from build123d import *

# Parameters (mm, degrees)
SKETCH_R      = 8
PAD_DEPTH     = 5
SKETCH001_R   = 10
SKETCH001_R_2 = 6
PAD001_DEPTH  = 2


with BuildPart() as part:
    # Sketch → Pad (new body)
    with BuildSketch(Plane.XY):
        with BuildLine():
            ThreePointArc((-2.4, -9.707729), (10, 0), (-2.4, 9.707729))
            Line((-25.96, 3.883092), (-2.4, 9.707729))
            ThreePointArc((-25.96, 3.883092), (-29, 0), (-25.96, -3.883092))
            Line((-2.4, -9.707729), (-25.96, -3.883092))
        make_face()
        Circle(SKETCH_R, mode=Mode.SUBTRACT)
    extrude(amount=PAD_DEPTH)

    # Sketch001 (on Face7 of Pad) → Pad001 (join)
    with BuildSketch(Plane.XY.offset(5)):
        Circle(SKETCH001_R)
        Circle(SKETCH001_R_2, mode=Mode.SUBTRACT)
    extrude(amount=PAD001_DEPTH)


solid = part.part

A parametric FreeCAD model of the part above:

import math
import FreeCAD as App
import Part
import Sketcher
from FreeCAD import Vector
Q = App.Units.Quantity

doc = App.newDocument("Part")
body = doc.addObject("PartDesign::Body", "Body")

sketch1 = doc.addObject("Sketcher::SketchObject", "Sketch")
body.addObject(sketch1)
sketch1.AttachmentSupport = (doc.XY_Plane, [""])
sketch1.MapMode = "FlatFace"
sketch1.addGeometry([
    Part.ArcOfCircle(Part.Circle(Vector(0, 0, 0), Vector(0, 0, 1), 10), math.radians(-104), math.radians(104)),
    Part.LineSegment(Vector(-2.4, 9.7, 0), Vector(-26, 3.9, 0)),
    Part.ArcOfCircle(Part.Circle(Vector(-25, 0, 0), Vector(0, 0, 1), 4), math.radians(104), math.radians(256)),
    Part.LineSegment(Vector(-26, -3.9, 0), Vector(-2.4, -9.7, 0)),
    Part.Circle(Vector(0, 0, 0), Vector(0, 0, 1), 8),
], False)
sketch1.addConstraint([
    Sketcher.Constraint("Tangent", 0, 2, 1, 1),
    Sketcher.Constraint("Tangent", 1, 2, 2, 1),
    Sketcher.Constraint("Tangent", 2, 2, 3, 1),
    Sketcher.Constraint("Tangent", 3, 2, 0, 1),
    Sketcher.Constraint("Coincident", 0, 3, -1, 1),
    Sketcher.Constraint("Coincident", 4, 3, -1, 1),
    Sketcher.Constraint("PointOnObject", 2, 3, -1),
    Sketcher.Constraint("Diameter", 4, Q("16 mm")),
    Sketcher.Constraint("Radius", 0, Q("10 mm")),
    Sketcher.Constraint("Radius", 2, Q("4.000001 mm")),
    Sketcher.Constraint("DistanceX", 2, 3, -1, 1, Q("24.999999 mm")),
])
pad1 = doc.addObject("PartDesign::Pad", "Pad")
body.addObject(pad1)
pad1.Profile = sketch1
pad1.Length = 5

sketch2 = doc.addObject("Sketcher::SketchObject", "Sketch001")
body.addObject(sketch2)
sketch2.AttachmentSupport = (doc.XY_Plane, [""])
sketch2.MapMode = "FlatFace"
sketch2.AttachmentOffset = App.Placement(Vector(0, 0, 5), App.Rotation())
sketch2.addGeometry([
    Part.Circle(Vector(0, 0, 0), Vector(0, 0, 1), 10),
    Part.Circle(Vector(0, 0, 0), Vector(0, 0, 1), 6),
], False)
sketch2.addConstraint([
    Sketcher.Constraint("Coincident", 0, 3, -1, 1),
    Sketcher.Constraint("Coincident", 1, 3, -1, 1),
    Sketcher.Constraint("Diameter", 0, Q("20 mm")),
    Sketcher.Constraint("Diameter", 1, Q("12 mm")),
])
pad2 = doc.addObject("PartDesign::Pad", "Pad001")
body.addObject(pad2)
pad2.Profile = sketch2
pad2.Length = 2

doc.recompute()
